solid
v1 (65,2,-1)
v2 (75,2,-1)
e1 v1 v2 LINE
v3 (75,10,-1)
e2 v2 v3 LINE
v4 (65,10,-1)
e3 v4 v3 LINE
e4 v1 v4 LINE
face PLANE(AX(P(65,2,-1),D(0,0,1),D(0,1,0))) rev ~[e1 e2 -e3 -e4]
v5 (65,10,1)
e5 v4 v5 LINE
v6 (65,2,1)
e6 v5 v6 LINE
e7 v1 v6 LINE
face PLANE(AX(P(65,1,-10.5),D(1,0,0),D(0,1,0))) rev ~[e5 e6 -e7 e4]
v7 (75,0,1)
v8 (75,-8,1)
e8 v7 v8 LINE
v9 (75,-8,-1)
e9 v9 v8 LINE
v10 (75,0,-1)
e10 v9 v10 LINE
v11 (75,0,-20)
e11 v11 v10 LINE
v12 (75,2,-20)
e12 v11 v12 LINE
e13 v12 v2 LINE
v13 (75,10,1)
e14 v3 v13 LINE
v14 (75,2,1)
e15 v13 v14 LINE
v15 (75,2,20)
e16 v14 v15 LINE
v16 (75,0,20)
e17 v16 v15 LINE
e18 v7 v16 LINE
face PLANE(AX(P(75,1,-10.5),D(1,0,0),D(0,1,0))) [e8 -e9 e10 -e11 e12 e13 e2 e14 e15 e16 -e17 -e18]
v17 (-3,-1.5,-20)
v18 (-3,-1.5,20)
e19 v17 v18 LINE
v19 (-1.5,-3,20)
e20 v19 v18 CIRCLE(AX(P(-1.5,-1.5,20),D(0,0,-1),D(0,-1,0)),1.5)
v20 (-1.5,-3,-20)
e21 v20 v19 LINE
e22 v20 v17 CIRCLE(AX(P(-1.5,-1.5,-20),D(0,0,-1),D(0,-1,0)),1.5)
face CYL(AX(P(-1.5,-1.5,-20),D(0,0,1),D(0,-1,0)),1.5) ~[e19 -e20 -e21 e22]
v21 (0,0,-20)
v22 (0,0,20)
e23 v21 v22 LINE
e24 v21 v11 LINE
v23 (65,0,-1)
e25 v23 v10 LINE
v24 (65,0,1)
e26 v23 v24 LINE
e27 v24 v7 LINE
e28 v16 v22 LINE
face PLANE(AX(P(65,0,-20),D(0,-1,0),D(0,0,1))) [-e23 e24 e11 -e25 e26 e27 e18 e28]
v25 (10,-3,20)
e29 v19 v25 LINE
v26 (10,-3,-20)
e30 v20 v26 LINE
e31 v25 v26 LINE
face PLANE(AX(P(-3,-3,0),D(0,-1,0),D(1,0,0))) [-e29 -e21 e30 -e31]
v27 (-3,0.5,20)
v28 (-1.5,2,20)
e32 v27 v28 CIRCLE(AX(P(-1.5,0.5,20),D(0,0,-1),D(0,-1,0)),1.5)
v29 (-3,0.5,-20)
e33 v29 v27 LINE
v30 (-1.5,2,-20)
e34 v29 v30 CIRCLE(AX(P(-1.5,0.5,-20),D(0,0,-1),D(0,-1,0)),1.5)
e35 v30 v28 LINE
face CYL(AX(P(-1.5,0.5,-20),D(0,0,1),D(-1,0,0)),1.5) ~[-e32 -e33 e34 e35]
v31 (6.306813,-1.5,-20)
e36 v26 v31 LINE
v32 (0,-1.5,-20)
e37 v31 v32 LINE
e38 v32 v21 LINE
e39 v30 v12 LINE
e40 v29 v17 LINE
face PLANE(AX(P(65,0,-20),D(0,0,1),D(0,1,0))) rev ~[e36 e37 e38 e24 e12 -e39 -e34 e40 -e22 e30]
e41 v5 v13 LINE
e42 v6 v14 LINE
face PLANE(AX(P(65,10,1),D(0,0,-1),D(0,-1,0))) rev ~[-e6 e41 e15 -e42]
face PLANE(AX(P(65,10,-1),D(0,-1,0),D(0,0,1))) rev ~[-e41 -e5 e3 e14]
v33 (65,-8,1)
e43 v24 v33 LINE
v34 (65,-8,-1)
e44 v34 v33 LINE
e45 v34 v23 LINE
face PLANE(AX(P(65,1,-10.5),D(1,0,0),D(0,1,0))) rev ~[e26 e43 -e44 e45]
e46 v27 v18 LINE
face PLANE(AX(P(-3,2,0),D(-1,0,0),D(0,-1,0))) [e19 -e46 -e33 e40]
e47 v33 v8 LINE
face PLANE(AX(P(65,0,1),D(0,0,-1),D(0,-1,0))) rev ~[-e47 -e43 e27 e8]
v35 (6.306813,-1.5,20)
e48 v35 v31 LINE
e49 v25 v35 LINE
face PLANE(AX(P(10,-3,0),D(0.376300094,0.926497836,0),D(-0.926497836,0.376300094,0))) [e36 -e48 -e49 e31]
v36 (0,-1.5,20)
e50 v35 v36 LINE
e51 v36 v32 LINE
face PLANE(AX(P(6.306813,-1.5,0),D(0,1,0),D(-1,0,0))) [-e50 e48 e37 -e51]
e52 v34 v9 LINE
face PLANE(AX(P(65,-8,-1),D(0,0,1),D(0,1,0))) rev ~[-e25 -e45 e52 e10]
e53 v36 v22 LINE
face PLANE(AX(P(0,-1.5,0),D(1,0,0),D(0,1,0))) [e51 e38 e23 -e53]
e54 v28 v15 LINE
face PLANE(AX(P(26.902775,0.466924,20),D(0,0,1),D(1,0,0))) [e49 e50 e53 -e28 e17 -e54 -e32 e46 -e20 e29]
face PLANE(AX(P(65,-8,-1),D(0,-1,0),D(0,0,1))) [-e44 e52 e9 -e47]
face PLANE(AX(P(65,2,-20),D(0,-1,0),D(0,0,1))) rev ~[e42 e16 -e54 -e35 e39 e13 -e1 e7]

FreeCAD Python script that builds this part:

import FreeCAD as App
import Part
import Sketcher

V = App.Vector
Q = App.Units.Quantity


def edges_at(feature, points):
    """Names of the edges that pass closest to the given points."""
    edges = feature.Shape.Edges
    near = lambda p: min(range(len(edges)), key=lambda i: edges[i].distToShape(Part.Vertex(*p))[0])
    return sorted({f"Edge{near(p) + 1}" for p in points})

doc = App.newDocument("Part")
params = doc.addObject("Spreadsheet::Sheet", "Params")
for row, (alias, value) in enumerate([
    ("sketch1_width", "65 mm"),
    ("sketch1_width2", "68 mm"),
    ("sketch1_width3", "13 mm"),
    ("sketch1_height", "2 mm"),
    ("sketch1_height2", "5 mm"),
    ("pad1_length", "40 mm"),
    ("sketch2_width", "2 mm"),
    ("sketch2_width2", "8 mm"),
    ("sketch2_height", "19 mm"),
    ("pad2_length", "10 mm"),
    ("fillet_radius", "1.5 mm"),
], start=1):
    params.set(f"A{row}", alias)
    params.set(f"B{row}", "=" + value)
    params.setAlias(f"B{row}", alias)

body = doc.addObject("PartDesign::Body", "Body")

sketch1 = doc.addObject("Sketcher::SketchObject", "Sketch")
body.addObject(sketch1)
sketch1.AttachmentSupport = (doc.XY_Plane, [""])
sketch1.MapMode = "FlatFace"
sketch1.addGeometry([
    Part.LineSegment(V(0, -1.5, 0), V(0, 0, 0)),
    Part.LineSegment(V(0, 0, 0), V(65, 0, 0)),
    Part.LineSegment(V(65, 0, 0), V(65, 2, 0)),
    Part.LineSegment(V(65, 2, 0), V(-3, 2, 0)),
    Part.LineSegment(V(-3, 2, 0), V(-3, -3, 0)),
    Part.LineSegment(V(-3, -3, 0), V(10, -3, 0)),
    Part.LineSegment(V(10, -3, 0), V(6.3, -1.5, 0)),
    Part.LineSegment(V(6.3, -1.5, 0), V(0, -1.5, 0)),
], False)
sketch1.addConstraint([
    Sketcher.Constraint("Coincident", 0, 2, 1, 1),
    Sketcher.Constraint("Coincident", 1, 2, 2, 1),
    Sketcher.Constraint("Coincident", 2, 2, 3, 1),
    Sketcher.Constraint("Coincident", 3, 2, 4, 1),
    Sketcher.Constraint("Coincident", 4, 2, 5, 1),
    Sketcher.Constraint("Coincident", 5, 2, 6, 1),
    Sketcher.Constraint("Coincident", 6, 2, 7, 1),
    Sketcher.Constraint("Coincident", 7, 2, 0, 1),
    Sketcher.Constraint("Vertical", 0),
    Sketcher.Constraint("Horizontal", 1),
    Sketcher.Constraint("Vertical", 2),
    Sketcher.Constraint("Horizontal", 3),
    Sketcher.Constraint("Vertical", 4),
    Sketcher.Constraint("Horizontal", 5),
    Sketcher.Constraint("Horizontal", 7),
    Sketcher.Constraint("Coincident", 0, 2, -1, 1),
    Sketcher.Constraint("DistanceX", 1, 1, 1, 2, Q("65 mm")),
    Sketcher.Constraint("DistanceX", 3, 2, 3, 1, Q("68 mm")),
    Sketcher.Constraint("DistanceX", 5, 1, 5, 2, Q("13 mm")),
    Sketcher.Constraint("DistanceY", 2, 1, 2, 2, Q("2 mm")),
    Sketcher.Constraint("DistanceY", 4, 2, 4, 1, Q("5 mm")),
    Sketcher.Constraint("DistanceY", 0, 1, 0, 2, Q("1.5 mm")),
    Sketcher.Constraint("Distance", 6, Q("3.98618 mm")),
])
sketch1.setExpression("Constraints[16]", "Params.sketch1_width")
sketch1.setExpression("Constraints[17]", "Params.sketch1_width2")
sketch1.setExpression("Constraints[18]", "Params.sketch1_width3")
sketch1.setExpression("Constraints[19]", "Params.sketch1_height")
sketch1.setExpression("Constraints[20]", "Params.sketch1_height2")
pad1 = doc.addObject("PartDesign::Pad", "Pad")
body.addObject(pad1)
pad1.Profile = sketch1
pad1.setExpression("Length", "Params.pad1_length")
pad1.Midplane = True

sketch2 = doc.addObject("Sketcher::SketchObject", "Sketch001")
body.addObject(sketch2)
sketch2.AttachmentSupport = (doc.YZ_Plane, [""])
sketch2.MapMode = "FlatFace"
sketch2.AttachmentOffset = App.Placement(V(0, 0, 65), App.Rotation())
sketch2.addGeometry([
    Part.LineSegment(V(0, -1, 0), V(0, -20, 0)),
    Part.LineSegment(V(0, -20, 0), V(2, -20, 0)),
    Part.LineSegment(V(2, -20, 0), V(2, -1, 0)),
    Part.LineSegment(V(2, -1, 0), V(10, -1, 0)),
    Part.LineSegment(V(10, -1, 0), V(10, 1, 0)),
    Part.LineSegment(V(10, 1, 0), V(2, 1, 0)),
    Part.LineSegment(V(2, 1, 0), V(2, 20, 0)),
    Part.LineSegment(V(2, 20, 0), V(0, 20, 0)),
    Part.LineSegment(V(0, 20, 0), V(0, 1, 0)),
    Part.LineSegment(V(0, 1, 0), V(-8, 1, 0)),
    Part.LineSegment(V(-8, 1, 0), V(-8, -1, 0)),
    Part.LineSegment(V(-8, -1, 0), V(0, -1, 0)),
], False)
sketch2.addConstraint([
    Sketcher.Constraint("Coincident", 0, 2, 1, 1),
    Sketcher.Constraint("Coincident", 1, 2, 2, 1),
    Sketcher.Constraint("Coincident", 2, 2, 3, 1),
    Sketcher.Constraint("Coincident", 3, 2, 4, 1),
    Sketcher.Constraint("Coincident", 4, 2, 5, 1),
    Sketcher.Constraint("Coincident", 5, 2, 6, 1),
    Sketcher.Constraint("Coincident", 6, 2, 7, 1),
    Sketcher.Constraint("Coincident", 7, 2, 8, 1),
    Sketcher.Constraint("Coincident", 8, 2, 9, 1),
    Sketcher.Constraint("Coincident", 9, 2, 10, 1),
    Sketcher.Constraint("Coincident", 10, 2, 11, 1),
    Sketcher.Constraint("Coincident", 11, 2, 0, 1),
    Sketcher.Constraint("Vertical", 0),
    Sketcher.Constraint("Horizontal", 1),
    Sketcher.Constraint("Vertical", 2),
    Sketcher.Constraint("Horizontal", 3),
    Sketcher.Constraint("Vertical", 4),
    Sketcher.Constraint("Horizontal", 5),
    Sketcher.Constraint("Vertical", 6),
    Sketcher.Constraint("Horizontal", 7),
    Sketcher.Constraint("Vertical", 8),
    Sketcher.Constraint("Horizontal", 9),
    Sketcher.Constraint("Vertical", 10),
    Sketcher.Constraint("Horizontal", 11),
    Sketcher.Constraint("Symmetric", 0, 2, 7, 2, -1, 1),
    Sketcher.Constraint("Symmetric", 2, 2, 5, 2, -1),
    Sketcher.Constraint("Symmetric", 8, 2, 11, 2, -1),
    Sketcher.Constraint("Horizontal", 5, 2, 8, 2),
    Sketcher.Constraint("Equal", 5, 9),
    Sketcher.Constraint("Equal", 7, 4),
    Sketcher.Constraint("DistanceX", 1, 1, 1, 2, Q("2 mm")),
    Sketcher.Constraint("DistanceX", 3, 1, 3, 2, Q("8 mm")),
    Sketcher.Constraint("DistanceY", 0, 2, 0, 1, Q("19 mm")),
])
sketch2.setExpression("Constraints[30]", "Params.sketch2_width")
sketch2.setExpression("Constraints[31]", "Params.sketch2_width2")
sketch2.setExpression("Constraints[32]", "Params.sketch2_height")
pad2 = doc.addObject("PartDesign::Pad", "Pad001")
body.addObject(pad2)
pad2.Profile = sketch2
pad2.setExpression("Length", "Params.pad2_length")
doc.recompute()

fillet = doc.addObject("PartDesign::Fillet", "Fillet")
body.addObject(fillet)
fillet.Base = (pad2, edges_at(pad2, [(-3, -3, 0), (-3, 2, 0)]))
fillet.setExpression("Radius", "Params.fillet_radius")

doc.recompute()
